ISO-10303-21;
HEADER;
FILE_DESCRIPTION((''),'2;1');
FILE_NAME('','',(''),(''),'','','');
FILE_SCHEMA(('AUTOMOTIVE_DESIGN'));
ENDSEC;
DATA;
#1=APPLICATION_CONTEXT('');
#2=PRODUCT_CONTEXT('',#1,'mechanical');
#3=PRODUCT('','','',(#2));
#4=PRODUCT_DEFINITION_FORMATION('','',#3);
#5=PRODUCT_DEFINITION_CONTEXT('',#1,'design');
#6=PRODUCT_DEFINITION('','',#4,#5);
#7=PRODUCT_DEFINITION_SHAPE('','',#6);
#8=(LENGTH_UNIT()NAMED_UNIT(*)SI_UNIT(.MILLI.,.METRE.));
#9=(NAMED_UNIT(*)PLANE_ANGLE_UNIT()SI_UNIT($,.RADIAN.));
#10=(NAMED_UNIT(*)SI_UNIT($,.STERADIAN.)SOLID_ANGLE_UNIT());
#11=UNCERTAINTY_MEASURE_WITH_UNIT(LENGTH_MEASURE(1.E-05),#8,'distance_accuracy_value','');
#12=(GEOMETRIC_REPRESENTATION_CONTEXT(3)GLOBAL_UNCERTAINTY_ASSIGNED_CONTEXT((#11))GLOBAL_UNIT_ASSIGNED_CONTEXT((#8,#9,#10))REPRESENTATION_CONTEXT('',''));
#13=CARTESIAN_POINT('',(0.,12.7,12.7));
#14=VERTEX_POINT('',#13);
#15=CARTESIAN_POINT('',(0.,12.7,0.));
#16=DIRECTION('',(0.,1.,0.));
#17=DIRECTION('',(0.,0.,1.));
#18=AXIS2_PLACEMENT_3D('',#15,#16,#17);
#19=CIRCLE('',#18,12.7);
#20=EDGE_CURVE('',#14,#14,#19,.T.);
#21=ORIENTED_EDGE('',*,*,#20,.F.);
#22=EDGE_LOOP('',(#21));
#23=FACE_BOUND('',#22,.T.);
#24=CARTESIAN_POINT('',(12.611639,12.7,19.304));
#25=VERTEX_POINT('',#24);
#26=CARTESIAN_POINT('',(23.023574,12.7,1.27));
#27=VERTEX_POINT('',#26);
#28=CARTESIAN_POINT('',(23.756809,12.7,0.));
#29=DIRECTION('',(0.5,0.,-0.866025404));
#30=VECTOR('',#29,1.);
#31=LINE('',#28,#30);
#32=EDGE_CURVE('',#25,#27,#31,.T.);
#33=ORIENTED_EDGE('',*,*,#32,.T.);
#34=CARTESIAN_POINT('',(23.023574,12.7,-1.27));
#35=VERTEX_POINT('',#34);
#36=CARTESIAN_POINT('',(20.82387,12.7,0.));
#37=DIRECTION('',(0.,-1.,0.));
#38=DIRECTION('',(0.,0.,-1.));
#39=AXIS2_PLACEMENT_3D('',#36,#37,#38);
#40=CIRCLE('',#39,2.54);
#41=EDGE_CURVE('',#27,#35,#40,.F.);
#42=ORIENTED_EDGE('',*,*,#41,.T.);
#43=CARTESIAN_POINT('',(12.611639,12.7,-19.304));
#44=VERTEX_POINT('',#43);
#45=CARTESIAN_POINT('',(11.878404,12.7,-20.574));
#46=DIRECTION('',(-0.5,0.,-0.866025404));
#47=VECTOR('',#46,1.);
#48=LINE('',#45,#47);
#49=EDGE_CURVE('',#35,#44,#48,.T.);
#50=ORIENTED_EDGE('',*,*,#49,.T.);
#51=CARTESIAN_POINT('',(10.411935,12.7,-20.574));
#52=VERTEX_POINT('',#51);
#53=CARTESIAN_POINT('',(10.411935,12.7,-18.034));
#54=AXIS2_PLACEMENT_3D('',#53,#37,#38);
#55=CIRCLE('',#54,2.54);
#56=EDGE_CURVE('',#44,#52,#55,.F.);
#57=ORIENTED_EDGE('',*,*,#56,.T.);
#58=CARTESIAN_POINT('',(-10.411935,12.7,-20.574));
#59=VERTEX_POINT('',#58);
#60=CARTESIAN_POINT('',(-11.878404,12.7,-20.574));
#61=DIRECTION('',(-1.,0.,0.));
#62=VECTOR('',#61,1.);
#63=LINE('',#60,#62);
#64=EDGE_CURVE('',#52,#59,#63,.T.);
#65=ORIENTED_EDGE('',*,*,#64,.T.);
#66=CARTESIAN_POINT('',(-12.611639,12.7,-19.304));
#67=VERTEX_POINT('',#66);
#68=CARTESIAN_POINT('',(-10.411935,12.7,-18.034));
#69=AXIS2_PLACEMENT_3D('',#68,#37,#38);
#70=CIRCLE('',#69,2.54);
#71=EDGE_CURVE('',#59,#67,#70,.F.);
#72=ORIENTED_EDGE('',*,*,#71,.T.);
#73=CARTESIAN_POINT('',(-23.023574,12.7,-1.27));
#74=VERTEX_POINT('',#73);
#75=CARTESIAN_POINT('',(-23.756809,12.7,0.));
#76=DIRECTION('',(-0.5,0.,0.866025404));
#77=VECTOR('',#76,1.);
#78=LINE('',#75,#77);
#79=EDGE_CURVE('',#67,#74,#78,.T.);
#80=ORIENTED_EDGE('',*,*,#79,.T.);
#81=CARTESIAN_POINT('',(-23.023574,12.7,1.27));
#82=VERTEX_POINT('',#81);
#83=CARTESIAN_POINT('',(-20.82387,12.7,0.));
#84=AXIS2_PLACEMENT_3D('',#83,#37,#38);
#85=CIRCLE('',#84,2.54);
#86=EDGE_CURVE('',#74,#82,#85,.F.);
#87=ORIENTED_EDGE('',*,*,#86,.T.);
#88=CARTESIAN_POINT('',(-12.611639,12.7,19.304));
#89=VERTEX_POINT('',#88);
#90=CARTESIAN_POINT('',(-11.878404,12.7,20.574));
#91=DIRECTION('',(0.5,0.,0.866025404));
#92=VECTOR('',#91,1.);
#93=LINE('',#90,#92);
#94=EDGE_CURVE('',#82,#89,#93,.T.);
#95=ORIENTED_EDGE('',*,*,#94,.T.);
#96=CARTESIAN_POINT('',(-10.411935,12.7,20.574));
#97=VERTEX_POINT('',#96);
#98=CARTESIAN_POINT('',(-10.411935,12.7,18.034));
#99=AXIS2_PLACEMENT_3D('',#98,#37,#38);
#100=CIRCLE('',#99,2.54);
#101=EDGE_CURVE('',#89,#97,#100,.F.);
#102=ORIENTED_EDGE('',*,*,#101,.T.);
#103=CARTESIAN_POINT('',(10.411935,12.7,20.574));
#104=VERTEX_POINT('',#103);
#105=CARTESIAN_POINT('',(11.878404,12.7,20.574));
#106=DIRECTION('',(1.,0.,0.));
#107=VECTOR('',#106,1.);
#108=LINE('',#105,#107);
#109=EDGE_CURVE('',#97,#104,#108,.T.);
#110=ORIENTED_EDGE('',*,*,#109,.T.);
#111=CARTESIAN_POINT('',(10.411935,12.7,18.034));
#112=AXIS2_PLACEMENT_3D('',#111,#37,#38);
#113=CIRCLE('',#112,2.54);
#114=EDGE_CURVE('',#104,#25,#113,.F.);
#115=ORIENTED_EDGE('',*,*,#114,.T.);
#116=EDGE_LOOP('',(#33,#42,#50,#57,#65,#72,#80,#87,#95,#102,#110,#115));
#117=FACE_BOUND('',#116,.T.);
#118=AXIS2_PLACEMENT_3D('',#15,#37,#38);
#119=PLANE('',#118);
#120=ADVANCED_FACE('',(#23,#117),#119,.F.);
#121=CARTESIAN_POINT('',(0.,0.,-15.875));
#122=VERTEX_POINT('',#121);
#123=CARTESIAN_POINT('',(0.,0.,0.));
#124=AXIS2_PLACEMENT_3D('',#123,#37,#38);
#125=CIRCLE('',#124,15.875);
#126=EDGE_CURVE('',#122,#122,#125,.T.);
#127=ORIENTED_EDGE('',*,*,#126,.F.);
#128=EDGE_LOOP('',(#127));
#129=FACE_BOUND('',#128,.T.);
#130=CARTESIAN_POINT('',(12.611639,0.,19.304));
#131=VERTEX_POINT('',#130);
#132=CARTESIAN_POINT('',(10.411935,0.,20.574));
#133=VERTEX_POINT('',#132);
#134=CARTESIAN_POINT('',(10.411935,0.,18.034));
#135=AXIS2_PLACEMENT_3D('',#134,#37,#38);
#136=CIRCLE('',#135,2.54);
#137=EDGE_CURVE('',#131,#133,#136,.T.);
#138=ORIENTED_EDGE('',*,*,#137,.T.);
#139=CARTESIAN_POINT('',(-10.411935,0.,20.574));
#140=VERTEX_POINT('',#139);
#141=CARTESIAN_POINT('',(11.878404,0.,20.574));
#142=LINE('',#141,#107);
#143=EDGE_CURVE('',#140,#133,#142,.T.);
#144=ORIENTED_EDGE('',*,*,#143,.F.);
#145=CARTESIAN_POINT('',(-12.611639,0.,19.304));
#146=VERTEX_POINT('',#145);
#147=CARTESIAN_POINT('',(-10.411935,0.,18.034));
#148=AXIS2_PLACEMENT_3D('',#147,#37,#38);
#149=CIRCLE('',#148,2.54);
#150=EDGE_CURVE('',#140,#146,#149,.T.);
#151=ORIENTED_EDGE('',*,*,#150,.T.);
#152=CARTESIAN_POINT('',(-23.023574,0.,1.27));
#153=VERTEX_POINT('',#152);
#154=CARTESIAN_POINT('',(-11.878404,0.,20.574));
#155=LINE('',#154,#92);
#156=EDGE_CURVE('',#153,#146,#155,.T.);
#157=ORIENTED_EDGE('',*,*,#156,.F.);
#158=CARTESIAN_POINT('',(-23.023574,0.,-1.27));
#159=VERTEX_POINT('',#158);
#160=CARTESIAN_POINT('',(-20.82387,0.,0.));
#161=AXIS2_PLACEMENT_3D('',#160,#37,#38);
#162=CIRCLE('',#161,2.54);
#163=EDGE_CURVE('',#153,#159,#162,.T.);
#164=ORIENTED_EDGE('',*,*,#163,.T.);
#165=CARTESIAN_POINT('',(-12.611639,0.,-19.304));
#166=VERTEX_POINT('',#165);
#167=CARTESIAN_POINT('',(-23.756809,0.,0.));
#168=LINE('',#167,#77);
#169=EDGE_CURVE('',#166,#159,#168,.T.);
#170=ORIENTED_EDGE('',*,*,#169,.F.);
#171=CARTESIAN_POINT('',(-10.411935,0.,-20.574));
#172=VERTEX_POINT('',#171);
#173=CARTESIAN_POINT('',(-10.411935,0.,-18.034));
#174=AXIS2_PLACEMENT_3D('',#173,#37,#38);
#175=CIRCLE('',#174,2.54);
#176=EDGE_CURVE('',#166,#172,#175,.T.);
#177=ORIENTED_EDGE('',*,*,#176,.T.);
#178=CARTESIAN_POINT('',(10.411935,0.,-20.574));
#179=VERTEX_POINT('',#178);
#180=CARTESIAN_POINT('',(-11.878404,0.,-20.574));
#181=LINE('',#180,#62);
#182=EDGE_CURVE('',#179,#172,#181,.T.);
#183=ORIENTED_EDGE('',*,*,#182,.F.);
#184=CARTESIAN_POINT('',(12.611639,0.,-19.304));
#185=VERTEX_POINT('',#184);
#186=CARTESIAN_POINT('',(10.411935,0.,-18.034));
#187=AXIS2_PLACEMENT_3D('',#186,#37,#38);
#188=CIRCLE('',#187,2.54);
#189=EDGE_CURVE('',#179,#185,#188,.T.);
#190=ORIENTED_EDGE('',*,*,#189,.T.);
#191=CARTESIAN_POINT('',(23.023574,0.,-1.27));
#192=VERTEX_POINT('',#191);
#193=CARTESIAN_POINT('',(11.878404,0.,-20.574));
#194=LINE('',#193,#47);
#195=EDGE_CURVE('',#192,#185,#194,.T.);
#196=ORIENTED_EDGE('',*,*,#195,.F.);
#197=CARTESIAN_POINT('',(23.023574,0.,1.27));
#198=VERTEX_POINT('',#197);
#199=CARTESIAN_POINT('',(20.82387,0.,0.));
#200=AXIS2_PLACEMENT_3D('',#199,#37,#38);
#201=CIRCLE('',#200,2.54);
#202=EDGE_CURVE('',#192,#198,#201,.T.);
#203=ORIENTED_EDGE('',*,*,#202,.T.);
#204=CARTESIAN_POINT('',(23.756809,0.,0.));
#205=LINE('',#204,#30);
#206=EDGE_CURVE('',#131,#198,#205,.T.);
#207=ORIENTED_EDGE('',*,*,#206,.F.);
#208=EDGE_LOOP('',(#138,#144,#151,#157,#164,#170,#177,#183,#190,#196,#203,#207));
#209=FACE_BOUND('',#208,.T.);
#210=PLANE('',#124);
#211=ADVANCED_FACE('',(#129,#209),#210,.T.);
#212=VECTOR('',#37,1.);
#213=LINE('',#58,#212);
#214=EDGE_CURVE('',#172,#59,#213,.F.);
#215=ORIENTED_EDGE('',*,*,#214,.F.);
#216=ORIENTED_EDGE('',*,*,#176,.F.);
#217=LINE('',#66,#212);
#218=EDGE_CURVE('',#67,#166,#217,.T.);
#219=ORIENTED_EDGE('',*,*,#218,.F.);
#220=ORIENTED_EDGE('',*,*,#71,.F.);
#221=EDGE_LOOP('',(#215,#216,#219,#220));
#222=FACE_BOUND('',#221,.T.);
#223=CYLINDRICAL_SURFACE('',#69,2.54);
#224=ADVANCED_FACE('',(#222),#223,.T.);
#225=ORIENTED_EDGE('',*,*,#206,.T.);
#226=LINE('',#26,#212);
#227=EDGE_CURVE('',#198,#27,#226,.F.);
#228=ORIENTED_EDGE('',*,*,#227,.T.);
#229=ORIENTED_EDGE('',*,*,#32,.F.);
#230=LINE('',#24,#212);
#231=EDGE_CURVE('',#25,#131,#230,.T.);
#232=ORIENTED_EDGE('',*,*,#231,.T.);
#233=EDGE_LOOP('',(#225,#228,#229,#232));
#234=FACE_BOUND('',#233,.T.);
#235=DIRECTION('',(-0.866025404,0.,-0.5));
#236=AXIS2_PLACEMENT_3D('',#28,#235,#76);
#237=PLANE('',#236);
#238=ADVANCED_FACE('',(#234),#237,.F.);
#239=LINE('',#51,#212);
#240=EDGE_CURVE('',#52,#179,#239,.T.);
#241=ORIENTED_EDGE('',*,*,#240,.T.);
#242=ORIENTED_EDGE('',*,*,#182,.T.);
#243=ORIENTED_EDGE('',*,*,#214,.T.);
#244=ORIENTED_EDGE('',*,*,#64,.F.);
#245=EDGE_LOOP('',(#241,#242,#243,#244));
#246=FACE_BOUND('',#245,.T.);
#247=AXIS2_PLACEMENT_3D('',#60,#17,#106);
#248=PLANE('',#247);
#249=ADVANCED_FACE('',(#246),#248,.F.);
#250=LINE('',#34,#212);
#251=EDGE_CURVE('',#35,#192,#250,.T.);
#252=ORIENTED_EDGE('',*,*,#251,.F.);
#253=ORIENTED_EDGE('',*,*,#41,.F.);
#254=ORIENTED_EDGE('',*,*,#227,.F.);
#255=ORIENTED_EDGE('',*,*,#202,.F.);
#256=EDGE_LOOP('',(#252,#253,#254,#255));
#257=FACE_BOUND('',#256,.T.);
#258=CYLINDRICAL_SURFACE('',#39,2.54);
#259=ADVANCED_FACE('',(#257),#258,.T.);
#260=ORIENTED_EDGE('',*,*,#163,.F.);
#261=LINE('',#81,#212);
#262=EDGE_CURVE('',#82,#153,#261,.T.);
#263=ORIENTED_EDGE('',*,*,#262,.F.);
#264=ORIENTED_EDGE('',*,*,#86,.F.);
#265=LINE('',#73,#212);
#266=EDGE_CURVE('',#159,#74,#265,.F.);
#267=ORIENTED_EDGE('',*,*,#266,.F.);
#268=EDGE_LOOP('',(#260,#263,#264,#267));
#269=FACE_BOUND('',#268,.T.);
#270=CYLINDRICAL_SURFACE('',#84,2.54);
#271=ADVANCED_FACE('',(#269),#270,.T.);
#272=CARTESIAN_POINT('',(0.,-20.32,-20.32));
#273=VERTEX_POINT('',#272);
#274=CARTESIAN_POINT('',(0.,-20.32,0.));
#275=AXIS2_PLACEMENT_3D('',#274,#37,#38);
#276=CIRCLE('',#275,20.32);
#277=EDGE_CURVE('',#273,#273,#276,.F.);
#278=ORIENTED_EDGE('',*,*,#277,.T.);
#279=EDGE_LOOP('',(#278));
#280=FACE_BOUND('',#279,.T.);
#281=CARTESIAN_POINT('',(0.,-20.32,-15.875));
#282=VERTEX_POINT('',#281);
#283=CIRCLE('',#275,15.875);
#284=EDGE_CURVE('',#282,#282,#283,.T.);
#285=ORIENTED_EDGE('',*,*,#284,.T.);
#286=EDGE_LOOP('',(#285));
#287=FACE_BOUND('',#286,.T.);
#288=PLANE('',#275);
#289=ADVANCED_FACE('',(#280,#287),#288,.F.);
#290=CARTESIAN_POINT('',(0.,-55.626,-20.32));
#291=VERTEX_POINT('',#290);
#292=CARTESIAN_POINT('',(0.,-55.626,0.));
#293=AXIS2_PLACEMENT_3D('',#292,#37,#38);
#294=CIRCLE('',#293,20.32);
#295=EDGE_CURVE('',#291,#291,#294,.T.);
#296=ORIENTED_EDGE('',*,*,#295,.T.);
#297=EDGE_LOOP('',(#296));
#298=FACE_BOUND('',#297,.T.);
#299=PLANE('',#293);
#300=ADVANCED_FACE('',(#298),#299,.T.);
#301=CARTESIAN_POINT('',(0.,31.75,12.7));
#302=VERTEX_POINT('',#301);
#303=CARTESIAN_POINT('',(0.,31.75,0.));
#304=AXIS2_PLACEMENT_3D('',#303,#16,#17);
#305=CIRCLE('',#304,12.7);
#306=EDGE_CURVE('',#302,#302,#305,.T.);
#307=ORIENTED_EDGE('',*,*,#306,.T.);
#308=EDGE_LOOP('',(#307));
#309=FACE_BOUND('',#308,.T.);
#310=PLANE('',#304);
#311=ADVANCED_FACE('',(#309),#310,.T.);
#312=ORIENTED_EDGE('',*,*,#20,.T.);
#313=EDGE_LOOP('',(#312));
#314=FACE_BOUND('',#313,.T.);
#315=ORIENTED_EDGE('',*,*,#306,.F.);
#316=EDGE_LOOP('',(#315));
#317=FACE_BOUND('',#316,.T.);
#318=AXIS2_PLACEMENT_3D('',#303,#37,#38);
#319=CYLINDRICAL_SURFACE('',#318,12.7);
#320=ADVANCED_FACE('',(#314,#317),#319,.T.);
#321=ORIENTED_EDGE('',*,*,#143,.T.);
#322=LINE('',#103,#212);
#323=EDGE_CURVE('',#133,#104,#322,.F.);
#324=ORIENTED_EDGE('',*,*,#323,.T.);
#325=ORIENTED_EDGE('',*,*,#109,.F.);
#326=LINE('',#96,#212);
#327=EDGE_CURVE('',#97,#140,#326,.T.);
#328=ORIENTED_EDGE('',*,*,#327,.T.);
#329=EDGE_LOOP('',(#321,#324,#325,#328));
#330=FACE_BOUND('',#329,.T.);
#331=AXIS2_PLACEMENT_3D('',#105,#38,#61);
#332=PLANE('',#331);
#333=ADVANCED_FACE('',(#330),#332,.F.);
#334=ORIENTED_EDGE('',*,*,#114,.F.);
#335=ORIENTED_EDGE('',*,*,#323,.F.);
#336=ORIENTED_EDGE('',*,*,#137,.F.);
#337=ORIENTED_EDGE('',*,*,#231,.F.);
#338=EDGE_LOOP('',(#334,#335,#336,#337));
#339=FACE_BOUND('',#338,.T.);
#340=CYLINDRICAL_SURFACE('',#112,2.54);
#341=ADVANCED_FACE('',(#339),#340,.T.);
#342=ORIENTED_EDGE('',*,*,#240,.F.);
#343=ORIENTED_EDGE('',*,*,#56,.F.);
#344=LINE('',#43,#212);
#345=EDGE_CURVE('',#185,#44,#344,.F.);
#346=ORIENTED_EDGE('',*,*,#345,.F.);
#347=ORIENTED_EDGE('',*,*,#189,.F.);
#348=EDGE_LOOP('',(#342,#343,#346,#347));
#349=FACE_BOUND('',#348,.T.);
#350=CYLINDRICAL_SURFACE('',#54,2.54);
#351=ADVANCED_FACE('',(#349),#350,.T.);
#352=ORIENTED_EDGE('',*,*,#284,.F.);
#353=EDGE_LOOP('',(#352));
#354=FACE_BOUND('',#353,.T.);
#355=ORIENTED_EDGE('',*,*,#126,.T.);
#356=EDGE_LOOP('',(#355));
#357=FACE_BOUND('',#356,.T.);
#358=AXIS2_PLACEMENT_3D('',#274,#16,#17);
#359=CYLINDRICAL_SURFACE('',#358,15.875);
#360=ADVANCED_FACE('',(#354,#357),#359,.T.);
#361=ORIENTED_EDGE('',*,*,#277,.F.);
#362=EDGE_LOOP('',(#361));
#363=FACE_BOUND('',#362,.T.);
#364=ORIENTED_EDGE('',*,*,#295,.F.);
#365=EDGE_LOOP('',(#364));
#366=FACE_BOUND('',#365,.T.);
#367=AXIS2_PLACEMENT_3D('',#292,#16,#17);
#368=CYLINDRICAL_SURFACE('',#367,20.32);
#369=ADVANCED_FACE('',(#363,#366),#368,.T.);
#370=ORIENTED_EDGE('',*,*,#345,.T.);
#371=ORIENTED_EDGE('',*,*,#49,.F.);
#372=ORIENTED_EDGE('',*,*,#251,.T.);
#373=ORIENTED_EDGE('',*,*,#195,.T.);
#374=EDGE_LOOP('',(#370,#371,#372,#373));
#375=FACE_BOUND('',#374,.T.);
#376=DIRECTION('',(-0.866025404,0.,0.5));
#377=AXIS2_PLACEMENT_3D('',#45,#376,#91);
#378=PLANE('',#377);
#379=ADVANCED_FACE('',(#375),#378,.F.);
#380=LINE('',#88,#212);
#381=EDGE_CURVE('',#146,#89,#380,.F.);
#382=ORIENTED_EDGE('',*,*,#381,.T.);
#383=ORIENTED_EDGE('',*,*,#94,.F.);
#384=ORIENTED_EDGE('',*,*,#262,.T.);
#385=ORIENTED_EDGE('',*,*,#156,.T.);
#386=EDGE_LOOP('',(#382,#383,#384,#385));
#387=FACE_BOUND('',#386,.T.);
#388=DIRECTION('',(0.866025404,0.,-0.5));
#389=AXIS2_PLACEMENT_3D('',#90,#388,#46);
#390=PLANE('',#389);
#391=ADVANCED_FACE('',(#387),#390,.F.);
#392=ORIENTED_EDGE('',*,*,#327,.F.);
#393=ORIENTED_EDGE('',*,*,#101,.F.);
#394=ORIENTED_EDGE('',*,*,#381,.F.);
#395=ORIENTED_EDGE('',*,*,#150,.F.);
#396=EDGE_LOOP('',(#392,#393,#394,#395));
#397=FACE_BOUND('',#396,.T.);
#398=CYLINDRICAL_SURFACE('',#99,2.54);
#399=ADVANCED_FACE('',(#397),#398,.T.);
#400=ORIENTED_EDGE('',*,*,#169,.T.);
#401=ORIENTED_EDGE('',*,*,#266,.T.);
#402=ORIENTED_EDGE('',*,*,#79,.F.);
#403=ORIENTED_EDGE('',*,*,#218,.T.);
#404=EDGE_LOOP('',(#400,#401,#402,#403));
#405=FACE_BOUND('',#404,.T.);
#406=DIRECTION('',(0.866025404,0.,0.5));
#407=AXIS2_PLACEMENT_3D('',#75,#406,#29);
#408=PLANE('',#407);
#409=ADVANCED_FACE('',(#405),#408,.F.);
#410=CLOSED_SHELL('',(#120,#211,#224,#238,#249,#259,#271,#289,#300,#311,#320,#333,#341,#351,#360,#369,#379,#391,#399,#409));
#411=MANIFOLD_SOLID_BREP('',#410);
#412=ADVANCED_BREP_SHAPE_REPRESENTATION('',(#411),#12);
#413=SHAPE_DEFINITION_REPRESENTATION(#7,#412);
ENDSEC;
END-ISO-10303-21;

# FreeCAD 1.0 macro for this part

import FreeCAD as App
import Part
import Sketcher
from FreeCAD import Vector
Q = App.Units.Quantity


def edges_at(feature, points):
    """Names of the edges that pass closest to the given points."""
    edges = feature.Shape.Edges
    near = lambda p: min(range(len(edges)), key=lambda i: edges[i].distToShape(Part.Vertex(*p))[0])
    return sorted({f"Edge{near(p) + 1}" for p in points})


def add_polygon(sketch, points):
    """Adds a closed chain of lines whose ends are joined by coincident constraints."""
    first, n = sketch.GeometryCount, len(points)
    for a, b in zip(points, points[1:] + points[:1]):
        sketch.addGeometry(Part.LineSegment(App.Vector(*a, 0), App.Vector(*b, 0)), False)
    for i in range(n):
        sketch.addConstraint(Sketcher.Constraint("Coincident", first + i, 2, first + (i + 1) % n, 1))

doc = App.newDocument("Part")
body = doc.addObject("PartDesign::Body", "Body")

# Sketch on XZ plane
sketch1 = body.newObject("Sketcher::SketchObject", "Sketch")
sketch1.AttachmentSupport = (doc.getObject("XZ_Plane"), [""])
sketch1.MapMode = "FlatFace"
add_polygon(sketch1, [(12, -21), (-12, -21), (-24, 0), (-12, 21), (12, 21), (24, 0)])  # lines 0-5
sketch1.addConstraint([
    Sketcher.Constraint("Horizontal", 0),
    Sketcher.Constraint("Horizontal", 3),
    Sketcher.Constraint("Symmetric", 0, 2, 3, 2, -1, 1),
    Sketcher.Constraint("Symmetric", 1, 2, 4, 2, -1, 1),
    Sketcher.Constraint("PointOnObject", 1, 2, -1),
    Sketcher.Constraint("Parallel", 2, 5),
    Sketcher.Constraint("Vertical", 0, 2, 2, 2),
    Sketcher.Constraint("Angle", 1, Q("120 deg")),
    Sketcher.Constraint("DistanceY", 0, 2, -1, 1, Q("0.81 in")),
    Sketcher.Constraint("DistanceX", 0, 2, 0, 1, Q("23.756809 mm")),
])
pad1 = body.newObject("PartDesign::Pad", "Pad")
pad1.Profile = sketch1
pad1.Length = Q("0.5 in")
pad1.Reversed = True
doc.recompute()

fillet = body.newObject("PartDesign::Fillet", "Fillet")
fillet.Base = (pad1, edges_at(pad1, [
    (-11.878, 6.35, -20.574),
    (11.878, 6.35, -20.574),
    (23.757, 6.35, 0),
    (11.878, 6.35, 20.574),
    (-11.878, 6.35, 20.574),
    (-23.757, 6.35, 0),
]))
fillet.Radius = Q("0.1 in")

# Sketch on XZ plane
sketch2 = body.newObject("Sketcher::SketchObject", "Sketch001")
sketch2.AttachmentSupport = (doc.getObject("XZ_Plane"), [""])
sketch2.MapMode = "FlatFace"
sketch2.addGeometry(Part.Circle(Vector(0, 0, 0), Vector(0, 0, 1), 20), False)
sketch2.addConstraint([
    Sketcher.Constraint("Coincident", 0, 3, -1, 1),
    Sketcher.Constraint("Diameter", 0, Q("1.6 in")),
])
pad2 = body.newObject("PartDesign::Pad", "Pad001")
pad2.Profile = sketch2
pad2.Length = Q("2.19 in")

# Sketch on XZ plane
sketch3 = body.newObject("Sketcher::SketchObject", "Sketch002")
sketch3.AttachmentSupport = (doc.getObject("XZ_Plane"), [""])
sketch3.MapMode = "FlatFace"
sketch3.addGeometry([
    Part.Circle(Vector(0, 0, 0), Vector(0, 0, 1), 20),
    Part.Circle(Vector(0, 0, 0), Vector(0, 0, 1), 16),
], False)
sketch3.addConstraint([
    Sketcher.Constraint("Coincident", 0, 3, -1, 1),
    Sketcher.Constraint("Coincident", 1, 3, -1, 1),
    Sketcher.Constraint("Diameter", 0, Q("1.6 in")),
    Sketcher.Constraint("Diameter", 1, Q("1.25 in")),
])
pocket1 = body.newObject("PartDesign::Pocket", "Pocket")
pocket1.Profile = sketch3
pocket1.Length = Q("0.8 in")
pocket1.Reversed = True

# Sketch on XZ plane
sketch4 = body.newObject("Sketcher::SketchObject", "Sketch003")
sketch4.AttachmentSupport = (doc.getObject("XZ_Plane"), [""])
sketch4.MapMode = "FlatFace"
sketch4.AttachmentOffset = App.Placement(Vector(0, 0, -0.5 * 25.4), App.Rotation())
sketch4.addGeometry(Part.Circle(Vector(0, 0, 0), Vector(0, 0, 1), 13), False)
sketch4.addConstraint([
    Sketcher.Constraint("Coincident", 0, 3, -1, 1),
    Sketcher.Constraint("Diameter", 0, Q("1 in")),
])
pad3 = body.newObject("PartDesign::Pad", "Pad002")
pad3.Profile = sketch4
pad3.Length = Q("0.75 in")
pad3.Reversed = True

doc.recompute()
